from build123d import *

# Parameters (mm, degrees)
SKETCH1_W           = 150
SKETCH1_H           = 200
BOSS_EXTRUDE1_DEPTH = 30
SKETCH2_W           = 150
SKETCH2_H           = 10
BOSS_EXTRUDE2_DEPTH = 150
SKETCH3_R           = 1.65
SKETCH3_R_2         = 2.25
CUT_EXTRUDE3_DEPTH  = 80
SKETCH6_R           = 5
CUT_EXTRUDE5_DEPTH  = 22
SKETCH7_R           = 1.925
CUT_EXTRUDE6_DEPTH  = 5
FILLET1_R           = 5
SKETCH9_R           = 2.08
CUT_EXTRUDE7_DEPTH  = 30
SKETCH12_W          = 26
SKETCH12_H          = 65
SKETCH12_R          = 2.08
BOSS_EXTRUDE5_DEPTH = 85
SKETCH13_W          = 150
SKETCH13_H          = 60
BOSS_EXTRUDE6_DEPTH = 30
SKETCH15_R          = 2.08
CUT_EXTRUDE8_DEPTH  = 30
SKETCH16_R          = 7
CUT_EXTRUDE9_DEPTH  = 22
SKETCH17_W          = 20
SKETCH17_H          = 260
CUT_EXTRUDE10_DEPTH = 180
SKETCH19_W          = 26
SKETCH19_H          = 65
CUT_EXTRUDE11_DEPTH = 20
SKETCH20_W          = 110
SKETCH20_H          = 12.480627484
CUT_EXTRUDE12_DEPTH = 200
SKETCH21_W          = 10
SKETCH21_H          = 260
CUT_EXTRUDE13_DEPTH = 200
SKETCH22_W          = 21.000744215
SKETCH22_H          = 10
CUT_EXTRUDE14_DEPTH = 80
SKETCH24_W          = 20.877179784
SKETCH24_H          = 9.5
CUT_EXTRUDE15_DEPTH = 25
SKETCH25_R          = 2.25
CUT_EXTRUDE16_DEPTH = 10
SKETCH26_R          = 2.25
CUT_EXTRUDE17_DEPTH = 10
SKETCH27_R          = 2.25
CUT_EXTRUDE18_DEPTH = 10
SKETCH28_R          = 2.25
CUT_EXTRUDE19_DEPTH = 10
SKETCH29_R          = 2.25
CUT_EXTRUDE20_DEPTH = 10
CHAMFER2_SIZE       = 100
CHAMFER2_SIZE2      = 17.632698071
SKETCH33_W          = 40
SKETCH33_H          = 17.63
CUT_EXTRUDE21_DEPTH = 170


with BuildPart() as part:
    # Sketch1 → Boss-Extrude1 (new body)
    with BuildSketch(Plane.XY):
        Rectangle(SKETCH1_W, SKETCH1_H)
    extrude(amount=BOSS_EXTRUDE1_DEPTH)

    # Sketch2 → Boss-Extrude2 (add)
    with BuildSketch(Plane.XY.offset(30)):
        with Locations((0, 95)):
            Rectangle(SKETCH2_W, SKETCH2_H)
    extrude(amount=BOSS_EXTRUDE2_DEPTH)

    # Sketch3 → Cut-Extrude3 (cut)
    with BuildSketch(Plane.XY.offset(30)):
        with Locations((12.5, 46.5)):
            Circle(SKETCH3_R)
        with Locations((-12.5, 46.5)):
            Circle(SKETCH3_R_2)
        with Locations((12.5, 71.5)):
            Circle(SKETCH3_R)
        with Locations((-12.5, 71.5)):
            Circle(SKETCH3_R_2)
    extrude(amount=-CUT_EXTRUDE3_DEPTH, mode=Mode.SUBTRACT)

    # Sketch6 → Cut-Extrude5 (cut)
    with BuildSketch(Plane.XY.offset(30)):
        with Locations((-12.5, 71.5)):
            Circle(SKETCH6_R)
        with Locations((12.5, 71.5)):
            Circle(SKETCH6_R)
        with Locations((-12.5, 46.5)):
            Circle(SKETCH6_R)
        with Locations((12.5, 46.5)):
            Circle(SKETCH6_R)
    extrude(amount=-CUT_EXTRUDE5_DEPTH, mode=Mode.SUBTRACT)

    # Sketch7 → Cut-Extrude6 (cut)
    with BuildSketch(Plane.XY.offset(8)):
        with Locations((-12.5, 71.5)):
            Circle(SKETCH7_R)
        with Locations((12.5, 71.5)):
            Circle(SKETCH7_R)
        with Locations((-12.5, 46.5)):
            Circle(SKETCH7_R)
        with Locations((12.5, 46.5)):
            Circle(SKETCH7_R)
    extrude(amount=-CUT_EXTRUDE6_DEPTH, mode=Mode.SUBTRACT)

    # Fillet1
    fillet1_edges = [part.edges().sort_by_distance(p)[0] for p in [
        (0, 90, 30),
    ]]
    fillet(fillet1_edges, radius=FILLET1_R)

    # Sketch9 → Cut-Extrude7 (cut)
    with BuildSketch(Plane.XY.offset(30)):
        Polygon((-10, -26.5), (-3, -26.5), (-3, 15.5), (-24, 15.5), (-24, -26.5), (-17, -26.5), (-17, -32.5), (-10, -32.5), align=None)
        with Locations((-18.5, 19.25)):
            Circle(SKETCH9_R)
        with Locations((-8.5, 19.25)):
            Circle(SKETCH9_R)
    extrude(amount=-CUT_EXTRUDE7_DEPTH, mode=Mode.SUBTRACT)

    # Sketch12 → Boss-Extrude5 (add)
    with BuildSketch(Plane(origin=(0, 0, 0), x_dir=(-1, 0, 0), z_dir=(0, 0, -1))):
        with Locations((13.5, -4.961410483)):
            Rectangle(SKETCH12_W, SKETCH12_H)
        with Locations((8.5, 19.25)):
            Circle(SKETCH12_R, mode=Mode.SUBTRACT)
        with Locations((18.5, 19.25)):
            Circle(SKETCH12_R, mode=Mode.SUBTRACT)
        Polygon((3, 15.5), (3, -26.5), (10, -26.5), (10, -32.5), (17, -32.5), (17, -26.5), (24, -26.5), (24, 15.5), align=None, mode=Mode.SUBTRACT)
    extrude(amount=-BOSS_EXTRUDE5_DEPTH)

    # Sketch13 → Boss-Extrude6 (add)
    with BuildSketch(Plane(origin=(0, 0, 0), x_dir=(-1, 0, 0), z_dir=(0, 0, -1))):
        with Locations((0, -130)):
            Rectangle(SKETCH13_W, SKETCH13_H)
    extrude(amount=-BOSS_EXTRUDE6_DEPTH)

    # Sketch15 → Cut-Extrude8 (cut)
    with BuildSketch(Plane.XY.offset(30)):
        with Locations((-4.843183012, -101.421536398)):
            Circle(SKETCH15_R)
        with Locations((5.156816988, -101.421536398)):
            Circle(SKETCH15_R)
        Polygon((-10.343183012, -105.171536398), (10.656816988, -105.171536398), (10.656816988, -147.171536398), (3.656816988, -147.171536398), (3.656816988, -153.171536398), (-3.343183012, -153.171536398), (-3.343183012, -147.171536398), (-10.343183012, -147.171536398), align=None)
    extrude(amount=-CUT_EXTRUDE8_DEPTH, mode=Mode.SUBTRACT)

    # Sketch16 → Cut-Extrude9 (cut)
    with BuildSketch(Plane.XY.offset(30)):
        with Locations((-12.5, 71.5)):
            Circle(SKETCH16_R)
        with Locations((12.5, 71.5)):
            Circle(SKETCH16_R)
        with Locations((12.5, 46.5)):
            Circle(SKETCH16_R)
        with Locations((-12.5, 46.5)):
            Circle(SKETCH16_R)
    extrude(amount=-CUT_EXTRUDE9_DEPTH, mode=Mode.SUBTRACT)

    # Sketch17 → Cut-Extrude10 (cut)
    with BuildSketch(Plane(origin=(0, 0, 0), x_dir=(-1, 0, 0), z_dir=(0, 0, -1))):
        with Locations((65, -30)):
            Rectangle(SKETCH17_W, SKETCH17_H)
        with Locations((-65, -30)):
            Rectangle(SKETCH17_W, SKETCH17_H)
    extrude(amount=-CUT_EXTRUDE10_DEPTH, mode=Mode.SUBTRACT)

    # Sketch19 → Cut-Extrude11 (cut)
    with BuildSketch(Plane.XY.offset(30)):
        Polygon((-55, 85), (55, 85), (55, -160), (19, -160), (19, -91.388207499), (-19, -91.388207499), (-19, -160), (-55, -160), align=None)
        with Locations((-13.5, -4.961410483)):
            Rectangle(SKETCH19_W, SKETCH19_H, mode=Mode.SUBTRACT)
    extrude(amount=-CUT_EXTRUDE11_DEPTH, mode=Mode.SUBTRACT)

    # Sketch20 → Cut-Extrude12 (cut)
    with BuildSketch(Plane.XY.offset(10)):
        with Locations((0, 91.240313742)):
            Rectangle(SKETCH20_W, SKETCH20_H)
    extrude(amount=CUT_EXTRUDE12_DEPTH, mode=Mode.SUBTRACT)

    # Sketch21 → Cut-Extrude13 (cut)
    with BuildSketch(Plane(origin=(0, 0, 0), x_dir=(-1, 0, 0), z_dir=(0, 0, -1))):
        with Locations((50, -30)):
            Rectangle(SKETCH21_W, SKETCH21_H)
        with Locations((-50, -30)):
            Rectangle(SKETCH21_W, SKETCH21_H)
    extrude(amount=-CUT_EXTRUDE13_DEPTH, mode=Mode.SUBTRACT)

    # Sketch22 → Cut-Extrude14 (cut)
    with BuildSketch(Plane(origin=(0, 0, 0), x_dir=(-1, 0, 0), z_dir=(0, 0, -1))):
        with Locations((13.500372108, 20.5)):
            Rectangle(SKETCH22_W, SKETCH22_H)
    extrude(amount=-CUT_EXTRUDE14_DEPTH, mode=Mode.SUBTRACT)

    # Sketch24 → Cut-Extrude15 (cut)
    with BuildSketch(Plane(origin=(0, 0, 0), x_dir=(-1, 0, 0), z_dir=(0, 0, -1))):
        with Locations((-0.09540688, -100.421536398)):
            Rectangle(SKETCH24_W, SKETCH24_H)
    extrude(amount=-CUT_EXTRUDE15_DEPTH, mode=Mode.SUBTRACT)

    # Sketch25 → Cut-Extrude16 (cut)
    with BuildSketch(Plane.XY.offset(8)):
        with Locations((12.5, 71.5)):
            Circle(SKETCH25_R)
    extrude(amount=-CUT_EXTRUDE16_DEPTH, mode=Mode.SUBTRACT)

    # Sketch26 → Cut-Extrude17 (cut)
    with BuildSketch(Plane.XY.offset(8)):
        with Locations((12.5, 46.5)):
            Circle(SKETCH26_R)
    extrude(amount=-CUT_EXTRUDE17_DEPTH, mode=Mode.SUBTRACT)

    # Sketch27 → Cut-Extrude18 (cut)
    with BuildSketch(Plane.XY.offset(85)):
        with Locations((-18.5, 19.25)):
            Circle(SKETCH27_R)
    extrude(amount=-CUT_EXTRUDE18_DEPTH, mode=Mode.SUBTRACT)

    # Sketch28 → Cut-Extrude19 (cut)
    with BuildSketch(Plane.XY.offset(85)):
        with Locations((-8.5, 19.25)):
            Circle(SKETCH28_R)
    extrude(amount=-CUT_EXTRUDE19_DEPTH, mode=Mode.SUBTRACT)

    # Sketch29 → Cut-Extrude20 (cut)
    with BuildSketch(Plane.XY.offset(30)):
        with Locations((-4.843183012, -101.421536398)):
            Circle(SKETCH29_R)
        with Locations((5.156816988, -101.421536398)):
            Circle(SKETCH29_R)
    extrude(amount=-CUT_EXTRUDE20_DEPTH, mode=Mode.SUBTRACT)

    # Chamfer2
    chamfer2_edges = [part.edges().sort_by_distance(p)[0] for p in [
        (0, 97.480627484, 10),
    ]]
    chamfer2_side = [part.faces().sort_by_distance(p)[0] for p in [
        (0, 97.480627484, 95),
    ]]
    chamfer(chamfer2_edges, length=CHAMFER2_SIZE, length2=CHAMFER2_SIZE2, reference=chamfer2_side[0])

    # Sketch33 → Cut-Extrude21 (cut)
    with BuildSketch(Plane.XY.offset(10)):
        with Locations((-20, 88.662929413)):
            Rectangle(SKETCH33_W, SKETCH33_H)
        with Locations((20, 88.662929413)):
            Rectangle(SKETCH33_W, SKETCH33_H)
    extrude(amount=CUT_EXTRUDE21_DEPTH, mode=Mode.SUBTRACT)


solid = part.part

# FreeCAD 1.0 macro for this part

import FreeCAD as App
import Part
import Sketcher
Q = App.Units.Quantity


def edges_at(feature, points):
    """Names of the edges that pass closest to the given points."""
    edges = feature.Shape.Edges
    near = lambda p: min(range(len(edges)), key=lambda i: edges[i].distToShape(Part.Vertex(*p))[0])
    return sorted({f"Edge{near(p) + 1}" for p in points})


def add_polygon(sketch, points):
    """Adds a closed chain of lines whose ends are joined by coincident constraints."""
    first, n = sketch.GeometryCount, len(points)
    for a, b in zip(points, points[1:] + points[:1]):
        sketch.addGeometry(Part.LineSegment(App.Vector(*a, 0), App.Vector(*b, 0)), False)
    for i in range(n):
        sketch.addConstraint(Sketcher.Constraint("Coincident", first + i, 2, first + (i + 1) % n, 1))

doc = App.newDocument("Part")
body = doc.addObject("PartDesign::Body", "Body")

# Sketch on XY plane
sketch1 = body.newObject("Sketcher::SketchObject", "Sketch")
sketch1.AttachmentSupport = (doc.getObject("XY_Plane"), [""])
sketch1.MapMode = "FlatFace"
add_polygon(sketch1, [(-75, 100), (-75, -100), (75, -100), (75, 100)])  # lines 0-3
sketch1.addConstraint([
    Sketcher.Constraint("Vertical", 0),
    Sketcher.Constraint("Horizontal", 1),
    Sketcher.Constraint("Vertical", 2),
    Sketcher.Constraint("Horizontal", 3),
    Sketcher.Constraint("Symmetric", 0, 2, 2, 2, -1, 1),
    Sketcher.Constraint("DistanceX", 1, 1, 1, 2, Q("150 mm")),
    Sketcher.Constraint("DistanceY", 0, 2, 0, 1, Q("200 mm")),
])
pad1 = body.newObject("PartDesign::Pad", "Pad")
pad1.Profile = sketch1
pad1.Length = 30

# Sketch on XY plane
sketch2 = body.newObject("Sketcher::SketchObject", "Sketch001")
sketch2.AttachmentSupport = (doc.getObject("XY_Plane"), [""])
sketch2.MapMode = "FlatFace"
sketch2.AttachmentOffset = App.Placement(App.Vector(0, 0, 30), App.Rotation())
add_polygon(sketch2, [(-75, 100), (-75, 90), (75, 90), (75, 100)])  # lines 0-3
sketch2.addConstraint([
    Sketcher.Constraint("Vertical", 0),
    Sketcher.Constraint("Horizontal", 1),
    Sketcher.Constraint("Vertical", 2),
    Sketcher.Constraint("Horizontal", 3),
    Sketcher.Constraint("DistanceX", 1, 1, 1, 2, Q("150 mm")),
    Sketcher.Constraint("DistanceY", 0, 2, 0, 1, Q("10 mm")),
    Sketcher.Constraint("DistanceX", 0, 2, -1, 1, Q("75 mm")),
    Sketcher.Constraint("DistanceY", -1, 1, 0, 2, Q("90 mm")),
])
pad2 = body.newObject("PartDesign::Pad", "Pad001")
pad2.Profile = sketch2
pad2.Length = 150

# Sketch on XY plane
sketch3 = body.newObject("Sketcher::SketchObject", "Sketch002")
sketch3.AttachmentSupport = (doc.getObject("XY_Plane"), [""])
sketch3.MapMode = "FlatFace"
sketch3.AttachmentOffset = App.Placement(App.Vector(0, 0, 30), App.Rotation())
sketch3.addGeometry([
    Part.Circle(App.Vector(12.5, 46.5, 0), App.Vector(0, 0, 1), 1.6),
    Part.Circle(App.Vector(-12.5, 46.5, 0), App.Vector(0, 0, 1), 2.2),
    Part.Circle(App.Vector(12.5, 71.5, 0), App.Vector(0, 0, 1), 1.6),
    Part.Circle(App.Vector(-12.5, 71.5, 0), App.Vector(0, 0, 1), 2.2),
], False)
sketch3.addConstraint([
    Sketcher.Constraint("Equal", 0, 2),
    Sketcher.Constraint("Equal", 1, 3),
    Sketcher.Constraint("Symmetric", 0, 3, 1, 3, -2),
    Sketcher.Constraint("Symmetric", 2, 3, 3, 3, -2),
    Sketcher.Constraint("Vertical", 0, 3, 2, 3),
    Sketcher.Constraint("Diameter", 0, Q("3.3 mm")),
    Sketcher.Constraint("Diameter", 1, Q("4.5 mm")),
    Sketcher.Constraint("DistanceX", 1, 3, 0, 3, Q("25 mm")),
    Sketcher.Constraint("DistanceY", 0, 3, 2, 3, Q("25 mm")),
    Sketcher.Constraint("DistanceY", -1, 1, 0, 3, Q("46.5 mm")),
])
pocket1 = body.newObject("PartDesign::Pocket", "Pocket")
pocket1.Profile = sketch3
pocket1.Length = 80

# Sketch on XY plane
sketch4 = body.newObject("Sketcher::SketchObject", "Sketch003")
sketch4.AttachmentSupport = (doc.getObject("XY_Plane"), [""])
sketch4.MapMode = "FlatFace"
sketch4.AttachmentOffset = App.Placement(App.Vector(0, 0, 30), App.Rotation())
sketch4.addGeometry([
    Part.Circle(App.Vector(-12, 72, 0), App.Vector(0, 0, 1), 5),
    Part.Circle(App.Vector(12, 72, 0), App.Vector(0, 0, 1), 5),
    Part.Circle(App.Vector(-12, 46, 0), App.Vector(0, 0, 1), 5),
    Part.Circle(App.Vector(12, 46, 0), App.Vector(0, 0, 1), 5),
], False)
sketch4.addConstraint([
    Sketcher.Constraint("Equal", 0, 1),
    Sketcher.Constraint("Equal", 1, 2),
    Sketcher.Constraint("Equal", 2, 3),
    Sketcher.Constraint("Symmetric", 0, 3, 1, 3, -2),
    Sketcher.Constraint("Symmetric", 2, 3, 3, 3, -2),
    Sketcher.Constraint("Vertical", 0, 3, 2, 3),
    Sketcher.Constraint("Diameter", 0, Q("10 mm")),
    Sketcher.Constraint("DistanceX", 0, 3, 1, 3, Q("25 mm")),
    Sketcher.Constraint("DistanceY", 2, 3, 0, 3, Q("25 mm")),
    Sketcher.Constraint("DistanceY", -1, 1, 0, 3, Q("71.5 mm")),
])
pocket2 = body.newObject("PartDesign::Pocket", "Pocket001")
pocket2.Profile = sketch4
pocket2.Length = 22

# Sketch on XY plane
sketch5 = body.newObject("Sketcher::SketchObject", "Sketch004")
sketch5.AttachmentSupport = (doc.getObject("XY_Plane"), [""])
sketch5.MapMode = "FlatFace"
sketch5.AttachmentOffset = App.Placement(App.Vector(0, 0, 8), App.Rotation())
sketch5.addGeometry([
    Part.Circle(App.Vector(-12.5, 71.5, 0), App.Vector(0, 0, 1), 1.9),
    Part.Circle(App.Vector(12.5, 71.5, 0), App.Vector(0, 0, 1), 1.9),
    Part.Circle(App.Vector(-12.5, 46.5, 0), App.Vector(0, 0, 1), 1.9),
    Part.Circle(App.Vector(12.5, 46.5, 0), App.Vector(0, 0, 1), 1.9),
], False)
sketch5.addConstraint([
    Sketcher.Constraint("Equal", 0, 1),
    Sketcher.Constraint("Equal", 1, 2),
    Sketcher.Constraint("Equal", 2, 3),
    Sketcher.Constraint("Symmetric", 0, 3, 1, 3, -2),
    Sketcher.Constraint("Symmetric", 2, 3, 3, 3, -2),
    Sketcher.Constraint("Vertical", 0, 3, 2, 3),
    Sketcher.Constraint("Diameter", 0, Q("3.85 mm")),
    Sketcher.Constraint("DistanceX", 0, 3, 1, 3, Q("25 mm")),
    Sketcher.Constraint("DistanceY", 2, 3, 0, 3, Q("25 mm")),
    Sketcher.Constraint("DistanceY", -1, 1, 0, 3, Q("71.5 mm")),
])
pocket3 = body.newObject("PartDesign::Pocket", "Pocket002")
pocket3.Profile = sketch5
pocket3.Length = 5
doc.recompute()

fillet = body.newObject("PartDesign::Fillet", "Fillet")
fillet.Base = (pocket3, edges_at(pocket3, [(0, 90, 30)]))
fillet.Radius = 5

# Sketch on XY plane
sketch6 = body.newObject("Sketcher::SketchObject", "Sketch005")
sketch6.AttachmentSupport = (doc.getObject("XY_Plane"), [""])
sketch6.MapMode = "FlatFace"
sketch6.AttachmentOffset = App.Placement(App.Vector(0, 0, 30), App.Rotation())
add_polygon(sketch6, [(-10, -26.5), (-3, -26.5), (-3, 15.5), (-24, 15.5), (-24, -26.5), (-17, -26.5), (-17, -32.5), (-10, -32.5)])  # lines 0-7
sketch6.addGeometry(Part.Circle(App.Vector(-18.5, 19.2, 0), App.Vector(0, 0, 1), 2.1), False)  # 8
sketch6.addGeometry(Part.Circle(App.Vector(-8.5, 19.2, 0), App.Vector(0, 0, 1), 2.1), False)  # 9
sketch6.addConstraint([
    Sketcher.Constraint("Horizontal", 0),
    Sketcher.Constraint("Vertical", 1),
    Sketcher.Constraint("Horizontal", 2),
    Sketcher.Constraint("Vertical", 3),
    Sketcher.Constraint("Horizontal", 4),
    Sketcher.Constraint("Vertical", 5),
    Sketcher.Constraint("Horizontal", 6),
    Sketcher.Constraint("Vertical", 7),
    Sketcher.Constraint("Equal", 8, 9),
    Sketcher.Constraint("Horizontal", 8, 3, 9, 3),
    Sketcher.Constraint("Horizontal", 0, 2, 3, 2),
    Sketcher.Constraint("Equal", 0, 4),
    Sketcher.Constraint("Equal", 4, 6),
    Sketcher.Constraint("Diameter", 8, Q("4.16 mm")),
    Sketcher.Constraint("DistanceX", 0, 1, 0, 2, Q("7 mm")),
    Sketcher.Constraint("DistanceY", 1, 1, 1, 2, Q("42 mm")),
    Sketcher.Constraint("DistanceY", 5, 2, 5, 1, Q("6 mm")),
    Sketcher.Constraint("DistanceX", 0, 2, -1, 1, Q("3 mm")),
    Sketcher.Constraint("DistanceX", 8, 3, 9, 3, Q("10 mm")),
    Sketcher.Constraint("DistanceX", 8, 3, -1, 1, Q("18.5 mm")),
    Sketcher.Constraint("DistanceY", 0, 2, -1, 1, Q("26.5 mm")),
    Sketcher.Constraint("DistanceY", -1, 1, 8, 3, Q("19.25 mm")),
])
pocket4 = body.newObject("PartDesign::Pocket", "Pocket003")
pocket4.Profile = sketch6
pocket4.Length = 30

# Sketch on XY plane
sketch7 = body.newObject("Sketcher::SketchObject", "Sketch006")
sketch7.AttachmentSupport = (doc.getObject("XY_Plane"), [""])
sketch7.MapMode = "FlatFace"
add_polygon(sketch7, [(-0.5, 27.5), (-0.5, -37.5), (-26.5, -37.5), (-26.5, 27.5)])  # lines 0-3
add_polygon(sketch7, [(-3, -26.5), (-3, 15.5), (-24, 15.5), (-24, -26.5), (-17, -26.5), (-17, -32.5), (-10, -32.5), (-10, -26.5)])  # lines 4-11
sketch7.addGeometry(Part.Circle(App.Vector(-8.5, 19.2, 0), App.Vector(0, 0, 1), 2.1), False)  # 12
sketch7.addGeometry(Part.Circle(App.Vector(-18.5, 19.2, 0), App.Vector(0, 0, 1), 2.1), False)  # 13
sketch7.addConstraint([
    Sketcher.Constraint("Vertical", 0),
    Sketcher.Constraint("Horizontal", 1),
    Sketcher.Constraint("Vertical", 2),
    Sketcher.Constraint("Horizontal", 3),
    Sketcher.Constraint("Vertical", 4),
    Sketcher.Constraint("Horizontal", 5),
    Sketcher.Constraint("Vertical", 6),
    Sketcher.Constraint("Horizontal", 7),
    Sketcher.Constraint("Vertical", 8),
    Sketcher.Constraint("Horizontal", 9),
    Sketcher.Constraint("Vertical", 10),
    Sketcher.Constraint("Horizontal", 11),
    Sketcher.Constraint("Equal", 12, 13),
    Sketcher.Constraint("Horizontal", 12, 3, 13, 3),
    Sketcher.Constraint("Horizontal", 7, 2, 10, 2),
    Sketcher.Constraint("Equal", 7, 9),
    Sketcher.Constraint("Equal", 9, 11),
    Sketcher.Constraint("Diameter", 12, Q("4.16 mm")),
    Sketcher.Constraint("DistanceX", 1, 2, 1, 1, Q("26 mm")),
    Sketcher.Constraint("DistanceX", 5, 2, 5, 1, Q("21 mm")),
    Sketcher.Constraint("DistanceY", 0, 2, 0, 1, Q("65 mm")),
    Sketcher.Constraint("DistanceY", 4, 1, 4, 2, Q("42 mm")),
    Sketcher.Constraint("DistanceY", 8, 2, 8, 1, Q("6 mm")),
    Sketcher.Constraint("DistanceX", 4, 2, -1, 1, Q("3 mm")),
    Sketcher.Constraint("DistanceX", 13, 3, 12, 3, Q("10 mm")),
    Sketcher.Constraint("DistanceX", 12, 3, 0, 2, Q("8 mm")),
    Sketcher.Constraint("DistanceX", 12, 3, -1, 1, Q("8.5 mm")),
    Sketcher.Constraint("DistanceY", -1, 1, 4, 2, Q("15.5 mm")),
    Sketcher.Constraint("DistanceY", -1, 1, 12, 3, Q("19.25 mm")),
    Sketcher.Constraint("DistanceY", 0, 2, -1, 1, Q("37.46141 mm")),
])
pad3 = body.newObject("PartDesign::Pad", "Pad002")
pad3.Profile = sketch7
pad3.Length = 85

# Sketch on XY plane
sketch8 = body.newObject("Sketcher::SketchObject", "Sketch007")
sketch8.AttachmentSupport = (doc.getObject("XY_Plane"), [""])
sketch8.MapMode = "FlatFace"
add_polygon(sketch8, [(75, -100), (75, -160), (-75, -160), (-75, -100)])  # lines 0-3
sketch8.addConstraint([
    Sketcher.Constraint("Vertical", 0),
    Sketcher.Constraint("Horizontal", 1),
    Sketcher.Constraint("Vertical", 2),
    Sketcher.Constraint("Horizontal", 3),
    Sketcher.Constraint("DistanceX", 1, 2, 1, 1, Q("150 mm")),
    Sketcher.Constraint("DistanceY", 0, 2, 0, 1, Q("60 mm")),
    Sketcher.Constraint("DistanceX", -1, 1, 0, 2, Q("75 mm")),
    Sketcher.Constraint("DistanceY", 0, 2, -1, 1, Q("160 mm")),
])
pad4 = body.newObject("PartDesign::Pad", "Pad003")
pad4.Profile = sketch8
pad4.Length = 30

# Sketch on XY plane
sketch9 = body.newObject("Sketcher::SketchObject", "Sketch008")
sketch9.AttachmentSupport = (doc.getObject("XY_Plane"), [""])
sketch9.MapMode = "FlatFace"
sketch9.AttachmentOffset = App.Placement(App.Vector(0, 0, 30), App.Rotation())
sketch9.addGeometry(Part.Circle(App.Vector(-4.8, -101.4, 0), App.Vector(0, 0, 1), 2.1), False)  # 0
sketch9.addGeometry(Part.Circle(App.Vector(5.2, -101.4, 0), App.Vector(0, 0, 1), 2.1), False)  # 1
add_polygon(sketch9, [(10.7, -105.2), (-10.3, -105.2), (-10.3, -147.2), (-3.3, -147.2), (-3.3, -153.2), (3.7, -153.2), (3.7, -147.2), (10.7, -147.2)])  # lines 2-9
sketch9.addConstraint([
    Sketcher.Constraint("Horizontal", 2),
    Sketcher.Constraint("Vertical", 3),
    Sketcher.Constraint("Horizontal", 4),
    Sketcher.Constraint("Vertical", 5),
    Sketcher.Constraint("Horizontal", 6),
    Sketcher.Constraint("Vertical", 7),
    Sketcher.Constraint("Horizontal", 8),
    Sketcher.Constraint("Vertical", 9),
    Sketcher.Constraint("Equal", 0, 1),
    Sketcher.Constraint("Horizontal", 0, 3, 1, 3),
    Sketcher.Constraint("Horizontal", 4, 2, 7, 2),
    Sketcher.Constraint("Equal", 4, 6),
    Sketcher.Constraint("Equal", 6, 8),
    Sketcher.Constraint("Diameter", 0, Q("4.16 mm")),
    Sketcher.Constraint("DistanceX", 2, 2, 2, 1, Q("21 mm")),
    Sketcher.Constraint("DistanceY", 3, 2, 3, 1, Q("42 mm")),
    Sketcher.Constraint("DistanceY", 5, 2, 5, 1, Q("6 mm")),
    Sketcher.Constraint("DistanceX", 0, 3, 1, 3, Q("10 mm")),
    Sketcher.Constraint("DistanceX", 2, 2, 0, 3, Q("5.5 mm")),
    Sketcher.Constraint("DistanceY", 2, 2, 0, 3, Q("3.75 mm")),
    Sketcher.Constraint("DistanceX", 0, 3, -1, 1, Q("4.843183 mm")),
    Sketcher.Constraint("DistanceY", 0, 3, -1, 1, Q("101.421536 mm")),
])
pocket5 = body.newObject("PartDesign::Pocket", "Pocket004")
pocket5.Profile = sketch9
pocket5.Length = 30

# Sketch on XY plane
sketch10 = body.newObject("Sketcher::SketchObject", "Sketch009")
sketch10.AttachmentSupport = (doc.getObject("XY_Plane"), [""])
sketch10.MapMode = "FlatFace"
sketch10.AttachmentOffset = App.Placement(App.Vector(0, 0, 30), App.Rotation())
sketch10.addGeometry([
    Part.Circle(App.Vector(-12, 72, 0), App.Vector(0, 0, 1), 7),
    Part.Circle(App.Vector(12, 72, 0), App.Vector(0, 0, 1), 7),
    Part.Circle(App.Vector(12, 46, 0), App.Vector(0, 0, 1), 7),
    Part.Circle(App.Vector(-12, 46, 0), App.Vector(0, 0, 1), 7),
], False)
sketch10.addConstraint([
    Sketcher.Constraint("Equal", 0, 1),
    Sketcher.Constraint("Equal", 1, 2),
    Sketcher.Constraint("Equal", 2, 3),
    Sketcher.Constraint("Symmetric", 0, 3, 1, 3, -2),
    Sketcher.Constraint("Symmetric", 2, 3, 3, 3, -2),
    Sketcher.Constraint("Vertical", 1, 3, 2, 3),
    Sketcher.Constraint("Diameter", 0, Q("14 mm")),
    Sketcher.Constraint("DistanceX", 0, 3, 1, 3, Q("25 mm")),
    Sketcher.Constraint("DistanceY", 2, 3, 1, 3, Q("25 mm")),
    Sketcher.Constraint("DistanceY", -1, 1, 0, 3, Q("71.5 mm")),
])
pocket6 = body.newObject("PartDesign::Pocket", "Pocket005")
pocket6.Profile = sketch10
pocket6.Length = 22

# Sketch on XY plane
sketch11 = body.newObject("Sketcher::SketchObject", "Sketch010")
sketch11.AttachmentSupport = (doc.getObject("XY_Plane"), [""])
sketch11.MapMode = "FlatFace"
add_polygon(sketch11, [(-55, 100), (-55, -160), (-75, -160), (-75, 100)])  # lines 0-3
add_polygon(sketch11, [(75, 100), (75, -160), (55, -160), (55, 100)])  # lines 4-7
sketch11.addConstraint([
    Sketcher.Constraint("Vertical", 0),
    Sketcher.Constraint("Horizontal", 1),
    Sketcher.Constraint("Vertical", 2),
    Sketcher.Constraint("Horizontal", 3),
    Sketcher.Constraint("Vertical", 4),
    Sketcher.Constraint("Horizontal", 5),
    Sketcher.Constraint("Vertical", 6),
    Sketcher.Constraint("Horizontal", 7),
    Sketcher.Constraint("Symmetric", 1, 2, 4, 2, -2),
    Sketcher.Constraint("Symmetric", 3, 2, 6, 2, -2),
    Sketcher.Constraint("DistanceX", 1, 2, 1, 1, Q("20 mm")),
    Sketcher.Constraint("DistanceY", 0, 2, 0, 1, Q("260 mm")),
    Sketcher.Constraint("DistanceX", 0, 2, -1, 1, Q("55 mm")),
    Sketcher.Constraint("DistanceY", 0, 2, -1, 1, Q("160 mm")),
])
pocket7 = body.newObject("PartDesign::Pocket", "Pocket006")
pocket7.Profile = sketch11
pocket7.Length = 180
pocket7.Reversed = True

# Sketch on XY plane
sketch12 = body.newObject("Sketcher::SketchObject", "Sketch011")
sketch12.AttachmentSupport = (doc.getObject("XY_Plane"), [""])
sketch12.MapMode = "FlatFace"
sketch12.AttachmentOffset = App.Placement(App.Vector(0, 0, 30), App.Rotation())
add_polygon(sketch12, [(55, 85), (-55, 85), (-55, -160), (-19, -160), (-19, -91), (19, -91), (19, -160), (55, -160)])  # lines 0-7
add_polygon(sketch12, [(-26, -37), (-26, 28), (0, 28), (0, -37)])  # lines 8-11
sketch12.addConstraint([
    Sketcher.Constraint("Horizontal", 0),
    Sketcher.Constraint("Vertical", 1),
    Sketcher.Constraint("Horizontal", 2),
    Sketcher.Constraint("Vertical", 3),
    Sketcher.Constraint("Horizontal", 4),
    Sketcher.Constraint("Vertical", 5),
    Sketcher.Constraint("Horizontal", 6),
    Sketcher.Constraint("Vertical", 7),
    Sketcher.Constraint("Vertical", 8),
    Sketcher.Constraint("Horizontal", 9),
    Sketcher.Constraint("Vertical", 10),
    Sketcher.Constraint("Horizontal", 11),
    Sketcher.Constraint("Symmetric", 2, 2, 5, 2, -2),
    Sketcher.Constraint("Equal", 2, 6),
    Sketcher.Constraint("DistanceX", 0, 2, 0, 1, Q("110 mm")),
    Sketcher.Constraint("DistanceX", 2, 1, 2, 2, Q("36 mm")),
    Sketcher.Constraint("DistanceX", 9, 1, 9, 2, Q("26 mm")),
    Sketcher.Constraint("DistanceY", 1, 2, 1, 1, Q("245 mm")),
    Sketcher.Constraint("DistanceY", 8, 1, 8, 2, Q("65 mm")),
    Sketcher.Constraint("DistanceY", -1, 1, 0, 2, Q("85 mm")),
    Sketcher.Constraint("DistanceX", 8, 2, -1, 1, Q("26.5 mm")),
    Sketcher.Constraint("DistanceY", 3, 1, 3, 2, Q("68.611793 mm")),
    Sketcher.Constraint("DistanceY", -1, 1, 8, 2, Q("27.53859 mm")),
])
pocket8 = body.newObject("PartDesign::Pocket", "Pocket007")
pocket8.Profile = sketch12
pocket8.Length = 20

# Sketch on XY plane
sketch13 = body.newObject("Sketcher::SketchObject", "Sketch012")
sketch13.AttachmentSupport = (doc.getObject("XY_Plane"), [""])
sketch13.MapMode = "FlatFace"
sketch13.AttachmentOffset = App.Placement(App.Vector(0, 0, 10), App.Rotation())
add_polygon(sketch13, [(-55, 97), (-55, 85), (55, 85), (55, 97)])  # lines 0-3
sketch13.addConstraint([
    Sketcher.Constraint("Vertical", 0),
    Sketcher.Constraint("Horizontal", 1),
    Sketcher.Constraint("Vertical", 2),
    Sketcher.Constraint("Horizontal", 3),
    Sketcher.Constraint("DistanceX", 1, 1, 1, 2, Q("110 mm")),
    Sketcher.Constraint("DistanceX", 0, 2, -1, 1, Q("55 mm")),
    Sketcher.Constraint("DistanceY", -1, 1, 0, 2, Q("85 mm")),
    Sketcher.Constraint("DistanceY", 0, 2, 0, 1, Q("12.480627 mm")),
])
pocket9 = body.newObject("PartDesign::Pocket", "Pocket008")
pocket9.Profile = sketch13
pocket9.Length = 200
pocket9.Reversed = True

# Sketch on XY plane
sketch14 = body.newObject("Sketcher::SketchObject", "Sketch013")
sketch14.AttachmentSupport = (doc.getObject("XY_Plane"), [""])
sketch14.MapMode = "FlatFace"
add_polygon(sketch14, [(-45, 100), (-45, -160), (-55, -160), (-55, 100)])  # lines 0-3
add_polygon(sketch14, [(55, 100), (55, -160), (45, -160), (45, 100)])  # lines 4-7
sketch14.addConstraint([
    Sketcher.Constraint("Vertical", 0),
    Sketcher.Constraint("Horizontal", 1),
    Sketcher.Constraint("Vertical", 2),
    Sketcher.Constraint("Horizontal", 3),
    Sketcher.Constraint("Vertical", 4),
    Sketcher.Constraint("Horizontal", 5),
    Sketcher.Constraint("Vertical", 6),
    Sketcher.Constraint("Horizontal", 7),
    Sketcher.Constraint("Symmetric", 1, 2, 4, 2, -2),
    Sketcher.Constraint("Symmetric", 3, 2, 6, 2, -2),
    Sketcher.Constraint("DistanceX", 1, 2, 1, 1, Q("10 mm")),
    Sketcher.Constraint("DistanceY", 0, 2, 0, 1, Q("260 mm")),
    Sketcher.Constraint("DistanceX", 0, 2, -1, 1, Q("45 mm")),
    Sketcher.Constraint("DistanceY", 0, 2, -1, 1, Q("160 mm")),
])
pocket10 = body.newObject("PartDesign::Pocket", "Pocket009")
pocket10.Profile = sketch14
pocket10.Length = 200
pocket10.Reversed = True

# Sketch on XY plane
sketch15 = body.newObject("Sketcher::SketchObject", "Sketch014")
sketch15.AttachmentSupport = (doc.getObject("XY_Plane"), [""])
sketch15.MapMode = "FlatFace"
add_polygon(sketch15, [(-3, 26), (-3, 16), (-24, 16), (-24, 26)])  # lines 0-3
sketch15.addConstraint([
    Sketcher.Constraint("Vertical", 0),
    Sketcher.Constraint("Horizontal", 1),
    Sketcher.Constraint("Vertical", 2),
    Sketcher.Constraint("Horizontal", 3),
    Sketcher.Constraint("DistanceY", 0, 2, 0, 1, Q("10 mm")),
    Sketcher.Constraint("DistanceX", 0, 2, -1, 1, Q("3 mm")),
    Sketcher.Constraint("DistanceY", -1, 1, 0, 2, Q("15.5 mm")),
    Sketcher.Constraint("DistanceX", 1, 2, 1, 1, Q("21.000744 mm")),
])
pocket11 = body.newObject("PartDesign::Pocket", "Pocket010")
pocket11.Profile = sketch15
pocket11.Length = 80
pocket11.Reversed = True

# Sketch on XY plane
sketch16 = body.newObject("Sketcher::SketchObject", "Sketch015")
sketch16.AttachmentSupport = (doc.getObject("XY_Plane"), [""])
sketch16.MapMode = "FlatFace"
add_polygon(sketch16, [(11, -96), (11, -105), (-10, -105), (-10, -96)])  # lines 0-3
sketch16.addConstraint([
    Sketcher.Constraint("Vertical", 0),
    Sketcher.Constraint("Horizontal", 1),
    Sketcher.Constraint("Vertical", 2),
    Sketcher.Constraint("Horizontal", 3),
    Sketcher.Constraint("DistanceY", 0, 2, 0, 1, Q("9.5 mm")),
    Sketcher.Constraint("DistanceX", 1, 2, 1, 1, Q("20.87718 mm")),
    Sketcher.Constraint("DistanceX", -1, 1, 0, 2, Q("10.533997 mm")),
    Sketcher.Constraint("DistanceY", 0, 2, -1, 1, Q("105.171536 mm")),
])
pocket12 = body.newObject("PartDesign::Pocket", "Pocket011")
pocket12.Profile = sketch16
pocket12.Length = 25
pocket12.Reversed = True

# Sketch on XY plane
sketch17 = body.newObject("Sketcher::SketchObject", "Sketch016")
sketch17.AttachmentSupport = (doc.getObject("XY_Plane"), [""])
sketch17.MapMode = "FlatFace"
sketch17.AttachmentOffset = App.Placement(App.Vector(0, 0, 8), App.Rotation())
sketch17.addGeometry(Part.Circle(App.Vector(12.5, 71.5, 0), App.Vector(0, 0, 1), 2.2), False)
sketch17.addConstraint([
    Sketcher.Constraint("Diameter", 0, Q("4.5 mm")),
    Sketcher.Constraint("DistanceX", -1, 1, 0, 3, Q("12.5 mm")),
    Sketcher.Constraint("DistanceY", -1, 1, 0, 3, Q("71.5 mm")),
])
pocket13 = body.newObject("PartDesign::Pocket", "Pocket012")
pocket13.Profile = sketch17
pocket13.Length = 10

# Sketch on XY plane
sketch18 = body.newObject("Sketcher::SketchObject", "Sketch017")
sketch18.AttachmentSupport = (doc.getObject("XY_Plane"), [""])
sketch18.MapMode = "FlatFace"
sketch18.AttachmentOffset = App.Placement(App.Vector(0, 0, 8), App.Rotation())
sketch18.addGeometry(Part.Circle(App.Vector(12.5, 46.5, 0), App.Vector(0, 0, 1), 2.2), False)
sketch18.addConstraint([
    Sketcher.Constraint("Diameter", 0, Q("4.5 mm")),
    Sketcher.Constraint("DistanceX", -1, 1, 0, 3, Q("12.5 mm")),
    Sketcher.Constraint("DistanceY", -1, 1, 0, 3, Q("46.5 mm")),
])
pocket14 = body.newObject("PartDesign::Pocket", "Pocket013")
pocket14.Profile = sketch18
pocket14.Length = 10

# Sketch on XY plane
sketch19 = body.newObject("Sketcher::SketchObject", "Sketch018")
sketch19.AttachmentSupport = (doc.getObject("XY_Plane"), [""])
sketch19.MapMode = "FlatFace"
sketch19.AttachmentOffset = App.Placement(App.Vector(0, 0, 85), App.Rotation())
sketch19.addGeometry(Part.Circle(App.Vector(-18.5, 19.2, 0), App.Vector(0, 0, 1), 2.2), False)
sketch19.addConstraint([
    Sketcher.Constraint("Diameter", 0, Q("4.5 mm")),
    Sketcher.Constraint("DistanceX", 0, 3, -1, 1, Q("18.5 mm")),
    Sketcher.Constraint("DistanceY", -1, 1, 0, 3, Q("19.25 mm")),
])
pocket15 = body.newObject("PartDesign::Pocket", "Pocket014")
pocket15.Profile = sketch19
pocket15.Length = 10

# Sketch on XY plane
sketch20 = body.newObject("Sketcher::SketchObject", "Sketch019")
sketch20.AttachmentSupport = (doc.getObject("XY_Plane"), [""])
sketch20.MapMode = "FlatFace"
sketch20.AttachmentOffset = App.Placement(App.Vector(0, 0, 85), App.Rotation())
sketch20.addGeometry(Part.Circle(App.Vector(-8.5, 19.2, 0), App.Vector(0, 0, 1), 2.2), False)
sketch20.addConstraint([
    Sketcher.Constraint("Diameter", 0, Q("4.5 mm")),
    Sketcher.Constraint("DistanceX", 0, 3, -1, 1, Q("8.5 mm")),
    Sketcher.Constraint("DistanceY", -1, 1, 0, 3, Q("19.25 mm")),
])
pocket16 = body.newObject("PartDesign::Pocket", "Pocket015")
pocket16.Profile = sketch20
pocket16.Length = 10

# Sketch on XY plane
sketch21 = body.newObject("Sketcher::SketchObject", "Sketch020")
sketch21.AttachmentSupport = (doc.getObject("XY_Plane"), [""])
sketch21.MapMode = "FlatFace"
sketch21.AttachmentOffset = App.Placement(App.Vector(0, 0, 30), App.Rotation())
sketch21.addGeometry([
    Part.Circle(App.Vector(-4.8, -101.4, 0), App.Vector(0, 0, 1), 2.2),
    Part.Circle(App.Vector(5.2, -101.4, 0), App.Vector(0, 0, 1), 2.2),
], False)
sketch21.addConstraint([
    Sketcher.Constraint("Equal", 0, 1),
    Sketcher.Constraint("Horizontal", 0, 3, 1, 3),
    Sketcher.Constraint("Diameter", 0, Q("4.5 mm")),
    Sketcher.Constraint("DistanceX", 0, 3, 1, 3, Q("10 mm")),
    Sketcher.Constraint("DistanceX", 0, 3, -1, 1, Q("4.843183 mm")),
    Sketcher.Constraint("DistanceY", 0, 3, -1, 1, Q("101.421536 mm")),
])
pocket17 = body.newObject("PartDesign::Pocket", "Pocket016")
pocket17.Profile = sketch21
pocket17.Length = 10
doc.recompute()

chamfer = body.newObject("PartDesign::Chamfer", "Chamfer")
chamfer.Base = (pocket17, edges_at(pocket17, [(0, 97.481, 10)]))
chamfer.ChamferType = "Two distances"
chamfer.Size = 100
chamfer.Size2 = 17.632698
chamfer.FlipDirection = True

# Sketch on XY plane
sketch22 = body.newObject("Sketcher::SketchObject", "Sketch021")
sketch22.AttachmentSupport = (doc.getObject("XY_Plane"), [""])
sketch22.MapMode = "FlatFace"
sketch22.AttachmentOffset = App.Placement(App.Vector(0, 0, 10), App.Rotation())
add_polygon(sketch22, [(-40, 97), (-40, 80), (40, 80), (40, 97)])  # lines 0-3
sketch22.addConstraint([
    Sketcher.Constraint("Vertical", 0),
    Sketcher.Constraint("Horizontal", 1),
    Sketcher.Constraint("Vertical", 2),
    Sketcher.Constraint("Horizontal", 3),
    Sketcher.Constraint("DistanceX", 1, 1, 1, 2, Q("80 mm")),
    Sketcher.Constraint("DistanceX", 0, 2, -1, 1, Q("40 mm")),
    Sketcher.Constraint("DistanceY", 0, 2, 0, 1, Q("17.63 mm")),
    Sketcher.Constraint("DistanceY", -1, 1, 0, 2, Q("79.847929 mm")),
])
pocket18 = body.newObject("PartDesign::Pocket", "Pocket017")
pocket18.Profile = sketch22
pocket18.Length = 170
pocket18.Reversed = True

doc.recompute()
